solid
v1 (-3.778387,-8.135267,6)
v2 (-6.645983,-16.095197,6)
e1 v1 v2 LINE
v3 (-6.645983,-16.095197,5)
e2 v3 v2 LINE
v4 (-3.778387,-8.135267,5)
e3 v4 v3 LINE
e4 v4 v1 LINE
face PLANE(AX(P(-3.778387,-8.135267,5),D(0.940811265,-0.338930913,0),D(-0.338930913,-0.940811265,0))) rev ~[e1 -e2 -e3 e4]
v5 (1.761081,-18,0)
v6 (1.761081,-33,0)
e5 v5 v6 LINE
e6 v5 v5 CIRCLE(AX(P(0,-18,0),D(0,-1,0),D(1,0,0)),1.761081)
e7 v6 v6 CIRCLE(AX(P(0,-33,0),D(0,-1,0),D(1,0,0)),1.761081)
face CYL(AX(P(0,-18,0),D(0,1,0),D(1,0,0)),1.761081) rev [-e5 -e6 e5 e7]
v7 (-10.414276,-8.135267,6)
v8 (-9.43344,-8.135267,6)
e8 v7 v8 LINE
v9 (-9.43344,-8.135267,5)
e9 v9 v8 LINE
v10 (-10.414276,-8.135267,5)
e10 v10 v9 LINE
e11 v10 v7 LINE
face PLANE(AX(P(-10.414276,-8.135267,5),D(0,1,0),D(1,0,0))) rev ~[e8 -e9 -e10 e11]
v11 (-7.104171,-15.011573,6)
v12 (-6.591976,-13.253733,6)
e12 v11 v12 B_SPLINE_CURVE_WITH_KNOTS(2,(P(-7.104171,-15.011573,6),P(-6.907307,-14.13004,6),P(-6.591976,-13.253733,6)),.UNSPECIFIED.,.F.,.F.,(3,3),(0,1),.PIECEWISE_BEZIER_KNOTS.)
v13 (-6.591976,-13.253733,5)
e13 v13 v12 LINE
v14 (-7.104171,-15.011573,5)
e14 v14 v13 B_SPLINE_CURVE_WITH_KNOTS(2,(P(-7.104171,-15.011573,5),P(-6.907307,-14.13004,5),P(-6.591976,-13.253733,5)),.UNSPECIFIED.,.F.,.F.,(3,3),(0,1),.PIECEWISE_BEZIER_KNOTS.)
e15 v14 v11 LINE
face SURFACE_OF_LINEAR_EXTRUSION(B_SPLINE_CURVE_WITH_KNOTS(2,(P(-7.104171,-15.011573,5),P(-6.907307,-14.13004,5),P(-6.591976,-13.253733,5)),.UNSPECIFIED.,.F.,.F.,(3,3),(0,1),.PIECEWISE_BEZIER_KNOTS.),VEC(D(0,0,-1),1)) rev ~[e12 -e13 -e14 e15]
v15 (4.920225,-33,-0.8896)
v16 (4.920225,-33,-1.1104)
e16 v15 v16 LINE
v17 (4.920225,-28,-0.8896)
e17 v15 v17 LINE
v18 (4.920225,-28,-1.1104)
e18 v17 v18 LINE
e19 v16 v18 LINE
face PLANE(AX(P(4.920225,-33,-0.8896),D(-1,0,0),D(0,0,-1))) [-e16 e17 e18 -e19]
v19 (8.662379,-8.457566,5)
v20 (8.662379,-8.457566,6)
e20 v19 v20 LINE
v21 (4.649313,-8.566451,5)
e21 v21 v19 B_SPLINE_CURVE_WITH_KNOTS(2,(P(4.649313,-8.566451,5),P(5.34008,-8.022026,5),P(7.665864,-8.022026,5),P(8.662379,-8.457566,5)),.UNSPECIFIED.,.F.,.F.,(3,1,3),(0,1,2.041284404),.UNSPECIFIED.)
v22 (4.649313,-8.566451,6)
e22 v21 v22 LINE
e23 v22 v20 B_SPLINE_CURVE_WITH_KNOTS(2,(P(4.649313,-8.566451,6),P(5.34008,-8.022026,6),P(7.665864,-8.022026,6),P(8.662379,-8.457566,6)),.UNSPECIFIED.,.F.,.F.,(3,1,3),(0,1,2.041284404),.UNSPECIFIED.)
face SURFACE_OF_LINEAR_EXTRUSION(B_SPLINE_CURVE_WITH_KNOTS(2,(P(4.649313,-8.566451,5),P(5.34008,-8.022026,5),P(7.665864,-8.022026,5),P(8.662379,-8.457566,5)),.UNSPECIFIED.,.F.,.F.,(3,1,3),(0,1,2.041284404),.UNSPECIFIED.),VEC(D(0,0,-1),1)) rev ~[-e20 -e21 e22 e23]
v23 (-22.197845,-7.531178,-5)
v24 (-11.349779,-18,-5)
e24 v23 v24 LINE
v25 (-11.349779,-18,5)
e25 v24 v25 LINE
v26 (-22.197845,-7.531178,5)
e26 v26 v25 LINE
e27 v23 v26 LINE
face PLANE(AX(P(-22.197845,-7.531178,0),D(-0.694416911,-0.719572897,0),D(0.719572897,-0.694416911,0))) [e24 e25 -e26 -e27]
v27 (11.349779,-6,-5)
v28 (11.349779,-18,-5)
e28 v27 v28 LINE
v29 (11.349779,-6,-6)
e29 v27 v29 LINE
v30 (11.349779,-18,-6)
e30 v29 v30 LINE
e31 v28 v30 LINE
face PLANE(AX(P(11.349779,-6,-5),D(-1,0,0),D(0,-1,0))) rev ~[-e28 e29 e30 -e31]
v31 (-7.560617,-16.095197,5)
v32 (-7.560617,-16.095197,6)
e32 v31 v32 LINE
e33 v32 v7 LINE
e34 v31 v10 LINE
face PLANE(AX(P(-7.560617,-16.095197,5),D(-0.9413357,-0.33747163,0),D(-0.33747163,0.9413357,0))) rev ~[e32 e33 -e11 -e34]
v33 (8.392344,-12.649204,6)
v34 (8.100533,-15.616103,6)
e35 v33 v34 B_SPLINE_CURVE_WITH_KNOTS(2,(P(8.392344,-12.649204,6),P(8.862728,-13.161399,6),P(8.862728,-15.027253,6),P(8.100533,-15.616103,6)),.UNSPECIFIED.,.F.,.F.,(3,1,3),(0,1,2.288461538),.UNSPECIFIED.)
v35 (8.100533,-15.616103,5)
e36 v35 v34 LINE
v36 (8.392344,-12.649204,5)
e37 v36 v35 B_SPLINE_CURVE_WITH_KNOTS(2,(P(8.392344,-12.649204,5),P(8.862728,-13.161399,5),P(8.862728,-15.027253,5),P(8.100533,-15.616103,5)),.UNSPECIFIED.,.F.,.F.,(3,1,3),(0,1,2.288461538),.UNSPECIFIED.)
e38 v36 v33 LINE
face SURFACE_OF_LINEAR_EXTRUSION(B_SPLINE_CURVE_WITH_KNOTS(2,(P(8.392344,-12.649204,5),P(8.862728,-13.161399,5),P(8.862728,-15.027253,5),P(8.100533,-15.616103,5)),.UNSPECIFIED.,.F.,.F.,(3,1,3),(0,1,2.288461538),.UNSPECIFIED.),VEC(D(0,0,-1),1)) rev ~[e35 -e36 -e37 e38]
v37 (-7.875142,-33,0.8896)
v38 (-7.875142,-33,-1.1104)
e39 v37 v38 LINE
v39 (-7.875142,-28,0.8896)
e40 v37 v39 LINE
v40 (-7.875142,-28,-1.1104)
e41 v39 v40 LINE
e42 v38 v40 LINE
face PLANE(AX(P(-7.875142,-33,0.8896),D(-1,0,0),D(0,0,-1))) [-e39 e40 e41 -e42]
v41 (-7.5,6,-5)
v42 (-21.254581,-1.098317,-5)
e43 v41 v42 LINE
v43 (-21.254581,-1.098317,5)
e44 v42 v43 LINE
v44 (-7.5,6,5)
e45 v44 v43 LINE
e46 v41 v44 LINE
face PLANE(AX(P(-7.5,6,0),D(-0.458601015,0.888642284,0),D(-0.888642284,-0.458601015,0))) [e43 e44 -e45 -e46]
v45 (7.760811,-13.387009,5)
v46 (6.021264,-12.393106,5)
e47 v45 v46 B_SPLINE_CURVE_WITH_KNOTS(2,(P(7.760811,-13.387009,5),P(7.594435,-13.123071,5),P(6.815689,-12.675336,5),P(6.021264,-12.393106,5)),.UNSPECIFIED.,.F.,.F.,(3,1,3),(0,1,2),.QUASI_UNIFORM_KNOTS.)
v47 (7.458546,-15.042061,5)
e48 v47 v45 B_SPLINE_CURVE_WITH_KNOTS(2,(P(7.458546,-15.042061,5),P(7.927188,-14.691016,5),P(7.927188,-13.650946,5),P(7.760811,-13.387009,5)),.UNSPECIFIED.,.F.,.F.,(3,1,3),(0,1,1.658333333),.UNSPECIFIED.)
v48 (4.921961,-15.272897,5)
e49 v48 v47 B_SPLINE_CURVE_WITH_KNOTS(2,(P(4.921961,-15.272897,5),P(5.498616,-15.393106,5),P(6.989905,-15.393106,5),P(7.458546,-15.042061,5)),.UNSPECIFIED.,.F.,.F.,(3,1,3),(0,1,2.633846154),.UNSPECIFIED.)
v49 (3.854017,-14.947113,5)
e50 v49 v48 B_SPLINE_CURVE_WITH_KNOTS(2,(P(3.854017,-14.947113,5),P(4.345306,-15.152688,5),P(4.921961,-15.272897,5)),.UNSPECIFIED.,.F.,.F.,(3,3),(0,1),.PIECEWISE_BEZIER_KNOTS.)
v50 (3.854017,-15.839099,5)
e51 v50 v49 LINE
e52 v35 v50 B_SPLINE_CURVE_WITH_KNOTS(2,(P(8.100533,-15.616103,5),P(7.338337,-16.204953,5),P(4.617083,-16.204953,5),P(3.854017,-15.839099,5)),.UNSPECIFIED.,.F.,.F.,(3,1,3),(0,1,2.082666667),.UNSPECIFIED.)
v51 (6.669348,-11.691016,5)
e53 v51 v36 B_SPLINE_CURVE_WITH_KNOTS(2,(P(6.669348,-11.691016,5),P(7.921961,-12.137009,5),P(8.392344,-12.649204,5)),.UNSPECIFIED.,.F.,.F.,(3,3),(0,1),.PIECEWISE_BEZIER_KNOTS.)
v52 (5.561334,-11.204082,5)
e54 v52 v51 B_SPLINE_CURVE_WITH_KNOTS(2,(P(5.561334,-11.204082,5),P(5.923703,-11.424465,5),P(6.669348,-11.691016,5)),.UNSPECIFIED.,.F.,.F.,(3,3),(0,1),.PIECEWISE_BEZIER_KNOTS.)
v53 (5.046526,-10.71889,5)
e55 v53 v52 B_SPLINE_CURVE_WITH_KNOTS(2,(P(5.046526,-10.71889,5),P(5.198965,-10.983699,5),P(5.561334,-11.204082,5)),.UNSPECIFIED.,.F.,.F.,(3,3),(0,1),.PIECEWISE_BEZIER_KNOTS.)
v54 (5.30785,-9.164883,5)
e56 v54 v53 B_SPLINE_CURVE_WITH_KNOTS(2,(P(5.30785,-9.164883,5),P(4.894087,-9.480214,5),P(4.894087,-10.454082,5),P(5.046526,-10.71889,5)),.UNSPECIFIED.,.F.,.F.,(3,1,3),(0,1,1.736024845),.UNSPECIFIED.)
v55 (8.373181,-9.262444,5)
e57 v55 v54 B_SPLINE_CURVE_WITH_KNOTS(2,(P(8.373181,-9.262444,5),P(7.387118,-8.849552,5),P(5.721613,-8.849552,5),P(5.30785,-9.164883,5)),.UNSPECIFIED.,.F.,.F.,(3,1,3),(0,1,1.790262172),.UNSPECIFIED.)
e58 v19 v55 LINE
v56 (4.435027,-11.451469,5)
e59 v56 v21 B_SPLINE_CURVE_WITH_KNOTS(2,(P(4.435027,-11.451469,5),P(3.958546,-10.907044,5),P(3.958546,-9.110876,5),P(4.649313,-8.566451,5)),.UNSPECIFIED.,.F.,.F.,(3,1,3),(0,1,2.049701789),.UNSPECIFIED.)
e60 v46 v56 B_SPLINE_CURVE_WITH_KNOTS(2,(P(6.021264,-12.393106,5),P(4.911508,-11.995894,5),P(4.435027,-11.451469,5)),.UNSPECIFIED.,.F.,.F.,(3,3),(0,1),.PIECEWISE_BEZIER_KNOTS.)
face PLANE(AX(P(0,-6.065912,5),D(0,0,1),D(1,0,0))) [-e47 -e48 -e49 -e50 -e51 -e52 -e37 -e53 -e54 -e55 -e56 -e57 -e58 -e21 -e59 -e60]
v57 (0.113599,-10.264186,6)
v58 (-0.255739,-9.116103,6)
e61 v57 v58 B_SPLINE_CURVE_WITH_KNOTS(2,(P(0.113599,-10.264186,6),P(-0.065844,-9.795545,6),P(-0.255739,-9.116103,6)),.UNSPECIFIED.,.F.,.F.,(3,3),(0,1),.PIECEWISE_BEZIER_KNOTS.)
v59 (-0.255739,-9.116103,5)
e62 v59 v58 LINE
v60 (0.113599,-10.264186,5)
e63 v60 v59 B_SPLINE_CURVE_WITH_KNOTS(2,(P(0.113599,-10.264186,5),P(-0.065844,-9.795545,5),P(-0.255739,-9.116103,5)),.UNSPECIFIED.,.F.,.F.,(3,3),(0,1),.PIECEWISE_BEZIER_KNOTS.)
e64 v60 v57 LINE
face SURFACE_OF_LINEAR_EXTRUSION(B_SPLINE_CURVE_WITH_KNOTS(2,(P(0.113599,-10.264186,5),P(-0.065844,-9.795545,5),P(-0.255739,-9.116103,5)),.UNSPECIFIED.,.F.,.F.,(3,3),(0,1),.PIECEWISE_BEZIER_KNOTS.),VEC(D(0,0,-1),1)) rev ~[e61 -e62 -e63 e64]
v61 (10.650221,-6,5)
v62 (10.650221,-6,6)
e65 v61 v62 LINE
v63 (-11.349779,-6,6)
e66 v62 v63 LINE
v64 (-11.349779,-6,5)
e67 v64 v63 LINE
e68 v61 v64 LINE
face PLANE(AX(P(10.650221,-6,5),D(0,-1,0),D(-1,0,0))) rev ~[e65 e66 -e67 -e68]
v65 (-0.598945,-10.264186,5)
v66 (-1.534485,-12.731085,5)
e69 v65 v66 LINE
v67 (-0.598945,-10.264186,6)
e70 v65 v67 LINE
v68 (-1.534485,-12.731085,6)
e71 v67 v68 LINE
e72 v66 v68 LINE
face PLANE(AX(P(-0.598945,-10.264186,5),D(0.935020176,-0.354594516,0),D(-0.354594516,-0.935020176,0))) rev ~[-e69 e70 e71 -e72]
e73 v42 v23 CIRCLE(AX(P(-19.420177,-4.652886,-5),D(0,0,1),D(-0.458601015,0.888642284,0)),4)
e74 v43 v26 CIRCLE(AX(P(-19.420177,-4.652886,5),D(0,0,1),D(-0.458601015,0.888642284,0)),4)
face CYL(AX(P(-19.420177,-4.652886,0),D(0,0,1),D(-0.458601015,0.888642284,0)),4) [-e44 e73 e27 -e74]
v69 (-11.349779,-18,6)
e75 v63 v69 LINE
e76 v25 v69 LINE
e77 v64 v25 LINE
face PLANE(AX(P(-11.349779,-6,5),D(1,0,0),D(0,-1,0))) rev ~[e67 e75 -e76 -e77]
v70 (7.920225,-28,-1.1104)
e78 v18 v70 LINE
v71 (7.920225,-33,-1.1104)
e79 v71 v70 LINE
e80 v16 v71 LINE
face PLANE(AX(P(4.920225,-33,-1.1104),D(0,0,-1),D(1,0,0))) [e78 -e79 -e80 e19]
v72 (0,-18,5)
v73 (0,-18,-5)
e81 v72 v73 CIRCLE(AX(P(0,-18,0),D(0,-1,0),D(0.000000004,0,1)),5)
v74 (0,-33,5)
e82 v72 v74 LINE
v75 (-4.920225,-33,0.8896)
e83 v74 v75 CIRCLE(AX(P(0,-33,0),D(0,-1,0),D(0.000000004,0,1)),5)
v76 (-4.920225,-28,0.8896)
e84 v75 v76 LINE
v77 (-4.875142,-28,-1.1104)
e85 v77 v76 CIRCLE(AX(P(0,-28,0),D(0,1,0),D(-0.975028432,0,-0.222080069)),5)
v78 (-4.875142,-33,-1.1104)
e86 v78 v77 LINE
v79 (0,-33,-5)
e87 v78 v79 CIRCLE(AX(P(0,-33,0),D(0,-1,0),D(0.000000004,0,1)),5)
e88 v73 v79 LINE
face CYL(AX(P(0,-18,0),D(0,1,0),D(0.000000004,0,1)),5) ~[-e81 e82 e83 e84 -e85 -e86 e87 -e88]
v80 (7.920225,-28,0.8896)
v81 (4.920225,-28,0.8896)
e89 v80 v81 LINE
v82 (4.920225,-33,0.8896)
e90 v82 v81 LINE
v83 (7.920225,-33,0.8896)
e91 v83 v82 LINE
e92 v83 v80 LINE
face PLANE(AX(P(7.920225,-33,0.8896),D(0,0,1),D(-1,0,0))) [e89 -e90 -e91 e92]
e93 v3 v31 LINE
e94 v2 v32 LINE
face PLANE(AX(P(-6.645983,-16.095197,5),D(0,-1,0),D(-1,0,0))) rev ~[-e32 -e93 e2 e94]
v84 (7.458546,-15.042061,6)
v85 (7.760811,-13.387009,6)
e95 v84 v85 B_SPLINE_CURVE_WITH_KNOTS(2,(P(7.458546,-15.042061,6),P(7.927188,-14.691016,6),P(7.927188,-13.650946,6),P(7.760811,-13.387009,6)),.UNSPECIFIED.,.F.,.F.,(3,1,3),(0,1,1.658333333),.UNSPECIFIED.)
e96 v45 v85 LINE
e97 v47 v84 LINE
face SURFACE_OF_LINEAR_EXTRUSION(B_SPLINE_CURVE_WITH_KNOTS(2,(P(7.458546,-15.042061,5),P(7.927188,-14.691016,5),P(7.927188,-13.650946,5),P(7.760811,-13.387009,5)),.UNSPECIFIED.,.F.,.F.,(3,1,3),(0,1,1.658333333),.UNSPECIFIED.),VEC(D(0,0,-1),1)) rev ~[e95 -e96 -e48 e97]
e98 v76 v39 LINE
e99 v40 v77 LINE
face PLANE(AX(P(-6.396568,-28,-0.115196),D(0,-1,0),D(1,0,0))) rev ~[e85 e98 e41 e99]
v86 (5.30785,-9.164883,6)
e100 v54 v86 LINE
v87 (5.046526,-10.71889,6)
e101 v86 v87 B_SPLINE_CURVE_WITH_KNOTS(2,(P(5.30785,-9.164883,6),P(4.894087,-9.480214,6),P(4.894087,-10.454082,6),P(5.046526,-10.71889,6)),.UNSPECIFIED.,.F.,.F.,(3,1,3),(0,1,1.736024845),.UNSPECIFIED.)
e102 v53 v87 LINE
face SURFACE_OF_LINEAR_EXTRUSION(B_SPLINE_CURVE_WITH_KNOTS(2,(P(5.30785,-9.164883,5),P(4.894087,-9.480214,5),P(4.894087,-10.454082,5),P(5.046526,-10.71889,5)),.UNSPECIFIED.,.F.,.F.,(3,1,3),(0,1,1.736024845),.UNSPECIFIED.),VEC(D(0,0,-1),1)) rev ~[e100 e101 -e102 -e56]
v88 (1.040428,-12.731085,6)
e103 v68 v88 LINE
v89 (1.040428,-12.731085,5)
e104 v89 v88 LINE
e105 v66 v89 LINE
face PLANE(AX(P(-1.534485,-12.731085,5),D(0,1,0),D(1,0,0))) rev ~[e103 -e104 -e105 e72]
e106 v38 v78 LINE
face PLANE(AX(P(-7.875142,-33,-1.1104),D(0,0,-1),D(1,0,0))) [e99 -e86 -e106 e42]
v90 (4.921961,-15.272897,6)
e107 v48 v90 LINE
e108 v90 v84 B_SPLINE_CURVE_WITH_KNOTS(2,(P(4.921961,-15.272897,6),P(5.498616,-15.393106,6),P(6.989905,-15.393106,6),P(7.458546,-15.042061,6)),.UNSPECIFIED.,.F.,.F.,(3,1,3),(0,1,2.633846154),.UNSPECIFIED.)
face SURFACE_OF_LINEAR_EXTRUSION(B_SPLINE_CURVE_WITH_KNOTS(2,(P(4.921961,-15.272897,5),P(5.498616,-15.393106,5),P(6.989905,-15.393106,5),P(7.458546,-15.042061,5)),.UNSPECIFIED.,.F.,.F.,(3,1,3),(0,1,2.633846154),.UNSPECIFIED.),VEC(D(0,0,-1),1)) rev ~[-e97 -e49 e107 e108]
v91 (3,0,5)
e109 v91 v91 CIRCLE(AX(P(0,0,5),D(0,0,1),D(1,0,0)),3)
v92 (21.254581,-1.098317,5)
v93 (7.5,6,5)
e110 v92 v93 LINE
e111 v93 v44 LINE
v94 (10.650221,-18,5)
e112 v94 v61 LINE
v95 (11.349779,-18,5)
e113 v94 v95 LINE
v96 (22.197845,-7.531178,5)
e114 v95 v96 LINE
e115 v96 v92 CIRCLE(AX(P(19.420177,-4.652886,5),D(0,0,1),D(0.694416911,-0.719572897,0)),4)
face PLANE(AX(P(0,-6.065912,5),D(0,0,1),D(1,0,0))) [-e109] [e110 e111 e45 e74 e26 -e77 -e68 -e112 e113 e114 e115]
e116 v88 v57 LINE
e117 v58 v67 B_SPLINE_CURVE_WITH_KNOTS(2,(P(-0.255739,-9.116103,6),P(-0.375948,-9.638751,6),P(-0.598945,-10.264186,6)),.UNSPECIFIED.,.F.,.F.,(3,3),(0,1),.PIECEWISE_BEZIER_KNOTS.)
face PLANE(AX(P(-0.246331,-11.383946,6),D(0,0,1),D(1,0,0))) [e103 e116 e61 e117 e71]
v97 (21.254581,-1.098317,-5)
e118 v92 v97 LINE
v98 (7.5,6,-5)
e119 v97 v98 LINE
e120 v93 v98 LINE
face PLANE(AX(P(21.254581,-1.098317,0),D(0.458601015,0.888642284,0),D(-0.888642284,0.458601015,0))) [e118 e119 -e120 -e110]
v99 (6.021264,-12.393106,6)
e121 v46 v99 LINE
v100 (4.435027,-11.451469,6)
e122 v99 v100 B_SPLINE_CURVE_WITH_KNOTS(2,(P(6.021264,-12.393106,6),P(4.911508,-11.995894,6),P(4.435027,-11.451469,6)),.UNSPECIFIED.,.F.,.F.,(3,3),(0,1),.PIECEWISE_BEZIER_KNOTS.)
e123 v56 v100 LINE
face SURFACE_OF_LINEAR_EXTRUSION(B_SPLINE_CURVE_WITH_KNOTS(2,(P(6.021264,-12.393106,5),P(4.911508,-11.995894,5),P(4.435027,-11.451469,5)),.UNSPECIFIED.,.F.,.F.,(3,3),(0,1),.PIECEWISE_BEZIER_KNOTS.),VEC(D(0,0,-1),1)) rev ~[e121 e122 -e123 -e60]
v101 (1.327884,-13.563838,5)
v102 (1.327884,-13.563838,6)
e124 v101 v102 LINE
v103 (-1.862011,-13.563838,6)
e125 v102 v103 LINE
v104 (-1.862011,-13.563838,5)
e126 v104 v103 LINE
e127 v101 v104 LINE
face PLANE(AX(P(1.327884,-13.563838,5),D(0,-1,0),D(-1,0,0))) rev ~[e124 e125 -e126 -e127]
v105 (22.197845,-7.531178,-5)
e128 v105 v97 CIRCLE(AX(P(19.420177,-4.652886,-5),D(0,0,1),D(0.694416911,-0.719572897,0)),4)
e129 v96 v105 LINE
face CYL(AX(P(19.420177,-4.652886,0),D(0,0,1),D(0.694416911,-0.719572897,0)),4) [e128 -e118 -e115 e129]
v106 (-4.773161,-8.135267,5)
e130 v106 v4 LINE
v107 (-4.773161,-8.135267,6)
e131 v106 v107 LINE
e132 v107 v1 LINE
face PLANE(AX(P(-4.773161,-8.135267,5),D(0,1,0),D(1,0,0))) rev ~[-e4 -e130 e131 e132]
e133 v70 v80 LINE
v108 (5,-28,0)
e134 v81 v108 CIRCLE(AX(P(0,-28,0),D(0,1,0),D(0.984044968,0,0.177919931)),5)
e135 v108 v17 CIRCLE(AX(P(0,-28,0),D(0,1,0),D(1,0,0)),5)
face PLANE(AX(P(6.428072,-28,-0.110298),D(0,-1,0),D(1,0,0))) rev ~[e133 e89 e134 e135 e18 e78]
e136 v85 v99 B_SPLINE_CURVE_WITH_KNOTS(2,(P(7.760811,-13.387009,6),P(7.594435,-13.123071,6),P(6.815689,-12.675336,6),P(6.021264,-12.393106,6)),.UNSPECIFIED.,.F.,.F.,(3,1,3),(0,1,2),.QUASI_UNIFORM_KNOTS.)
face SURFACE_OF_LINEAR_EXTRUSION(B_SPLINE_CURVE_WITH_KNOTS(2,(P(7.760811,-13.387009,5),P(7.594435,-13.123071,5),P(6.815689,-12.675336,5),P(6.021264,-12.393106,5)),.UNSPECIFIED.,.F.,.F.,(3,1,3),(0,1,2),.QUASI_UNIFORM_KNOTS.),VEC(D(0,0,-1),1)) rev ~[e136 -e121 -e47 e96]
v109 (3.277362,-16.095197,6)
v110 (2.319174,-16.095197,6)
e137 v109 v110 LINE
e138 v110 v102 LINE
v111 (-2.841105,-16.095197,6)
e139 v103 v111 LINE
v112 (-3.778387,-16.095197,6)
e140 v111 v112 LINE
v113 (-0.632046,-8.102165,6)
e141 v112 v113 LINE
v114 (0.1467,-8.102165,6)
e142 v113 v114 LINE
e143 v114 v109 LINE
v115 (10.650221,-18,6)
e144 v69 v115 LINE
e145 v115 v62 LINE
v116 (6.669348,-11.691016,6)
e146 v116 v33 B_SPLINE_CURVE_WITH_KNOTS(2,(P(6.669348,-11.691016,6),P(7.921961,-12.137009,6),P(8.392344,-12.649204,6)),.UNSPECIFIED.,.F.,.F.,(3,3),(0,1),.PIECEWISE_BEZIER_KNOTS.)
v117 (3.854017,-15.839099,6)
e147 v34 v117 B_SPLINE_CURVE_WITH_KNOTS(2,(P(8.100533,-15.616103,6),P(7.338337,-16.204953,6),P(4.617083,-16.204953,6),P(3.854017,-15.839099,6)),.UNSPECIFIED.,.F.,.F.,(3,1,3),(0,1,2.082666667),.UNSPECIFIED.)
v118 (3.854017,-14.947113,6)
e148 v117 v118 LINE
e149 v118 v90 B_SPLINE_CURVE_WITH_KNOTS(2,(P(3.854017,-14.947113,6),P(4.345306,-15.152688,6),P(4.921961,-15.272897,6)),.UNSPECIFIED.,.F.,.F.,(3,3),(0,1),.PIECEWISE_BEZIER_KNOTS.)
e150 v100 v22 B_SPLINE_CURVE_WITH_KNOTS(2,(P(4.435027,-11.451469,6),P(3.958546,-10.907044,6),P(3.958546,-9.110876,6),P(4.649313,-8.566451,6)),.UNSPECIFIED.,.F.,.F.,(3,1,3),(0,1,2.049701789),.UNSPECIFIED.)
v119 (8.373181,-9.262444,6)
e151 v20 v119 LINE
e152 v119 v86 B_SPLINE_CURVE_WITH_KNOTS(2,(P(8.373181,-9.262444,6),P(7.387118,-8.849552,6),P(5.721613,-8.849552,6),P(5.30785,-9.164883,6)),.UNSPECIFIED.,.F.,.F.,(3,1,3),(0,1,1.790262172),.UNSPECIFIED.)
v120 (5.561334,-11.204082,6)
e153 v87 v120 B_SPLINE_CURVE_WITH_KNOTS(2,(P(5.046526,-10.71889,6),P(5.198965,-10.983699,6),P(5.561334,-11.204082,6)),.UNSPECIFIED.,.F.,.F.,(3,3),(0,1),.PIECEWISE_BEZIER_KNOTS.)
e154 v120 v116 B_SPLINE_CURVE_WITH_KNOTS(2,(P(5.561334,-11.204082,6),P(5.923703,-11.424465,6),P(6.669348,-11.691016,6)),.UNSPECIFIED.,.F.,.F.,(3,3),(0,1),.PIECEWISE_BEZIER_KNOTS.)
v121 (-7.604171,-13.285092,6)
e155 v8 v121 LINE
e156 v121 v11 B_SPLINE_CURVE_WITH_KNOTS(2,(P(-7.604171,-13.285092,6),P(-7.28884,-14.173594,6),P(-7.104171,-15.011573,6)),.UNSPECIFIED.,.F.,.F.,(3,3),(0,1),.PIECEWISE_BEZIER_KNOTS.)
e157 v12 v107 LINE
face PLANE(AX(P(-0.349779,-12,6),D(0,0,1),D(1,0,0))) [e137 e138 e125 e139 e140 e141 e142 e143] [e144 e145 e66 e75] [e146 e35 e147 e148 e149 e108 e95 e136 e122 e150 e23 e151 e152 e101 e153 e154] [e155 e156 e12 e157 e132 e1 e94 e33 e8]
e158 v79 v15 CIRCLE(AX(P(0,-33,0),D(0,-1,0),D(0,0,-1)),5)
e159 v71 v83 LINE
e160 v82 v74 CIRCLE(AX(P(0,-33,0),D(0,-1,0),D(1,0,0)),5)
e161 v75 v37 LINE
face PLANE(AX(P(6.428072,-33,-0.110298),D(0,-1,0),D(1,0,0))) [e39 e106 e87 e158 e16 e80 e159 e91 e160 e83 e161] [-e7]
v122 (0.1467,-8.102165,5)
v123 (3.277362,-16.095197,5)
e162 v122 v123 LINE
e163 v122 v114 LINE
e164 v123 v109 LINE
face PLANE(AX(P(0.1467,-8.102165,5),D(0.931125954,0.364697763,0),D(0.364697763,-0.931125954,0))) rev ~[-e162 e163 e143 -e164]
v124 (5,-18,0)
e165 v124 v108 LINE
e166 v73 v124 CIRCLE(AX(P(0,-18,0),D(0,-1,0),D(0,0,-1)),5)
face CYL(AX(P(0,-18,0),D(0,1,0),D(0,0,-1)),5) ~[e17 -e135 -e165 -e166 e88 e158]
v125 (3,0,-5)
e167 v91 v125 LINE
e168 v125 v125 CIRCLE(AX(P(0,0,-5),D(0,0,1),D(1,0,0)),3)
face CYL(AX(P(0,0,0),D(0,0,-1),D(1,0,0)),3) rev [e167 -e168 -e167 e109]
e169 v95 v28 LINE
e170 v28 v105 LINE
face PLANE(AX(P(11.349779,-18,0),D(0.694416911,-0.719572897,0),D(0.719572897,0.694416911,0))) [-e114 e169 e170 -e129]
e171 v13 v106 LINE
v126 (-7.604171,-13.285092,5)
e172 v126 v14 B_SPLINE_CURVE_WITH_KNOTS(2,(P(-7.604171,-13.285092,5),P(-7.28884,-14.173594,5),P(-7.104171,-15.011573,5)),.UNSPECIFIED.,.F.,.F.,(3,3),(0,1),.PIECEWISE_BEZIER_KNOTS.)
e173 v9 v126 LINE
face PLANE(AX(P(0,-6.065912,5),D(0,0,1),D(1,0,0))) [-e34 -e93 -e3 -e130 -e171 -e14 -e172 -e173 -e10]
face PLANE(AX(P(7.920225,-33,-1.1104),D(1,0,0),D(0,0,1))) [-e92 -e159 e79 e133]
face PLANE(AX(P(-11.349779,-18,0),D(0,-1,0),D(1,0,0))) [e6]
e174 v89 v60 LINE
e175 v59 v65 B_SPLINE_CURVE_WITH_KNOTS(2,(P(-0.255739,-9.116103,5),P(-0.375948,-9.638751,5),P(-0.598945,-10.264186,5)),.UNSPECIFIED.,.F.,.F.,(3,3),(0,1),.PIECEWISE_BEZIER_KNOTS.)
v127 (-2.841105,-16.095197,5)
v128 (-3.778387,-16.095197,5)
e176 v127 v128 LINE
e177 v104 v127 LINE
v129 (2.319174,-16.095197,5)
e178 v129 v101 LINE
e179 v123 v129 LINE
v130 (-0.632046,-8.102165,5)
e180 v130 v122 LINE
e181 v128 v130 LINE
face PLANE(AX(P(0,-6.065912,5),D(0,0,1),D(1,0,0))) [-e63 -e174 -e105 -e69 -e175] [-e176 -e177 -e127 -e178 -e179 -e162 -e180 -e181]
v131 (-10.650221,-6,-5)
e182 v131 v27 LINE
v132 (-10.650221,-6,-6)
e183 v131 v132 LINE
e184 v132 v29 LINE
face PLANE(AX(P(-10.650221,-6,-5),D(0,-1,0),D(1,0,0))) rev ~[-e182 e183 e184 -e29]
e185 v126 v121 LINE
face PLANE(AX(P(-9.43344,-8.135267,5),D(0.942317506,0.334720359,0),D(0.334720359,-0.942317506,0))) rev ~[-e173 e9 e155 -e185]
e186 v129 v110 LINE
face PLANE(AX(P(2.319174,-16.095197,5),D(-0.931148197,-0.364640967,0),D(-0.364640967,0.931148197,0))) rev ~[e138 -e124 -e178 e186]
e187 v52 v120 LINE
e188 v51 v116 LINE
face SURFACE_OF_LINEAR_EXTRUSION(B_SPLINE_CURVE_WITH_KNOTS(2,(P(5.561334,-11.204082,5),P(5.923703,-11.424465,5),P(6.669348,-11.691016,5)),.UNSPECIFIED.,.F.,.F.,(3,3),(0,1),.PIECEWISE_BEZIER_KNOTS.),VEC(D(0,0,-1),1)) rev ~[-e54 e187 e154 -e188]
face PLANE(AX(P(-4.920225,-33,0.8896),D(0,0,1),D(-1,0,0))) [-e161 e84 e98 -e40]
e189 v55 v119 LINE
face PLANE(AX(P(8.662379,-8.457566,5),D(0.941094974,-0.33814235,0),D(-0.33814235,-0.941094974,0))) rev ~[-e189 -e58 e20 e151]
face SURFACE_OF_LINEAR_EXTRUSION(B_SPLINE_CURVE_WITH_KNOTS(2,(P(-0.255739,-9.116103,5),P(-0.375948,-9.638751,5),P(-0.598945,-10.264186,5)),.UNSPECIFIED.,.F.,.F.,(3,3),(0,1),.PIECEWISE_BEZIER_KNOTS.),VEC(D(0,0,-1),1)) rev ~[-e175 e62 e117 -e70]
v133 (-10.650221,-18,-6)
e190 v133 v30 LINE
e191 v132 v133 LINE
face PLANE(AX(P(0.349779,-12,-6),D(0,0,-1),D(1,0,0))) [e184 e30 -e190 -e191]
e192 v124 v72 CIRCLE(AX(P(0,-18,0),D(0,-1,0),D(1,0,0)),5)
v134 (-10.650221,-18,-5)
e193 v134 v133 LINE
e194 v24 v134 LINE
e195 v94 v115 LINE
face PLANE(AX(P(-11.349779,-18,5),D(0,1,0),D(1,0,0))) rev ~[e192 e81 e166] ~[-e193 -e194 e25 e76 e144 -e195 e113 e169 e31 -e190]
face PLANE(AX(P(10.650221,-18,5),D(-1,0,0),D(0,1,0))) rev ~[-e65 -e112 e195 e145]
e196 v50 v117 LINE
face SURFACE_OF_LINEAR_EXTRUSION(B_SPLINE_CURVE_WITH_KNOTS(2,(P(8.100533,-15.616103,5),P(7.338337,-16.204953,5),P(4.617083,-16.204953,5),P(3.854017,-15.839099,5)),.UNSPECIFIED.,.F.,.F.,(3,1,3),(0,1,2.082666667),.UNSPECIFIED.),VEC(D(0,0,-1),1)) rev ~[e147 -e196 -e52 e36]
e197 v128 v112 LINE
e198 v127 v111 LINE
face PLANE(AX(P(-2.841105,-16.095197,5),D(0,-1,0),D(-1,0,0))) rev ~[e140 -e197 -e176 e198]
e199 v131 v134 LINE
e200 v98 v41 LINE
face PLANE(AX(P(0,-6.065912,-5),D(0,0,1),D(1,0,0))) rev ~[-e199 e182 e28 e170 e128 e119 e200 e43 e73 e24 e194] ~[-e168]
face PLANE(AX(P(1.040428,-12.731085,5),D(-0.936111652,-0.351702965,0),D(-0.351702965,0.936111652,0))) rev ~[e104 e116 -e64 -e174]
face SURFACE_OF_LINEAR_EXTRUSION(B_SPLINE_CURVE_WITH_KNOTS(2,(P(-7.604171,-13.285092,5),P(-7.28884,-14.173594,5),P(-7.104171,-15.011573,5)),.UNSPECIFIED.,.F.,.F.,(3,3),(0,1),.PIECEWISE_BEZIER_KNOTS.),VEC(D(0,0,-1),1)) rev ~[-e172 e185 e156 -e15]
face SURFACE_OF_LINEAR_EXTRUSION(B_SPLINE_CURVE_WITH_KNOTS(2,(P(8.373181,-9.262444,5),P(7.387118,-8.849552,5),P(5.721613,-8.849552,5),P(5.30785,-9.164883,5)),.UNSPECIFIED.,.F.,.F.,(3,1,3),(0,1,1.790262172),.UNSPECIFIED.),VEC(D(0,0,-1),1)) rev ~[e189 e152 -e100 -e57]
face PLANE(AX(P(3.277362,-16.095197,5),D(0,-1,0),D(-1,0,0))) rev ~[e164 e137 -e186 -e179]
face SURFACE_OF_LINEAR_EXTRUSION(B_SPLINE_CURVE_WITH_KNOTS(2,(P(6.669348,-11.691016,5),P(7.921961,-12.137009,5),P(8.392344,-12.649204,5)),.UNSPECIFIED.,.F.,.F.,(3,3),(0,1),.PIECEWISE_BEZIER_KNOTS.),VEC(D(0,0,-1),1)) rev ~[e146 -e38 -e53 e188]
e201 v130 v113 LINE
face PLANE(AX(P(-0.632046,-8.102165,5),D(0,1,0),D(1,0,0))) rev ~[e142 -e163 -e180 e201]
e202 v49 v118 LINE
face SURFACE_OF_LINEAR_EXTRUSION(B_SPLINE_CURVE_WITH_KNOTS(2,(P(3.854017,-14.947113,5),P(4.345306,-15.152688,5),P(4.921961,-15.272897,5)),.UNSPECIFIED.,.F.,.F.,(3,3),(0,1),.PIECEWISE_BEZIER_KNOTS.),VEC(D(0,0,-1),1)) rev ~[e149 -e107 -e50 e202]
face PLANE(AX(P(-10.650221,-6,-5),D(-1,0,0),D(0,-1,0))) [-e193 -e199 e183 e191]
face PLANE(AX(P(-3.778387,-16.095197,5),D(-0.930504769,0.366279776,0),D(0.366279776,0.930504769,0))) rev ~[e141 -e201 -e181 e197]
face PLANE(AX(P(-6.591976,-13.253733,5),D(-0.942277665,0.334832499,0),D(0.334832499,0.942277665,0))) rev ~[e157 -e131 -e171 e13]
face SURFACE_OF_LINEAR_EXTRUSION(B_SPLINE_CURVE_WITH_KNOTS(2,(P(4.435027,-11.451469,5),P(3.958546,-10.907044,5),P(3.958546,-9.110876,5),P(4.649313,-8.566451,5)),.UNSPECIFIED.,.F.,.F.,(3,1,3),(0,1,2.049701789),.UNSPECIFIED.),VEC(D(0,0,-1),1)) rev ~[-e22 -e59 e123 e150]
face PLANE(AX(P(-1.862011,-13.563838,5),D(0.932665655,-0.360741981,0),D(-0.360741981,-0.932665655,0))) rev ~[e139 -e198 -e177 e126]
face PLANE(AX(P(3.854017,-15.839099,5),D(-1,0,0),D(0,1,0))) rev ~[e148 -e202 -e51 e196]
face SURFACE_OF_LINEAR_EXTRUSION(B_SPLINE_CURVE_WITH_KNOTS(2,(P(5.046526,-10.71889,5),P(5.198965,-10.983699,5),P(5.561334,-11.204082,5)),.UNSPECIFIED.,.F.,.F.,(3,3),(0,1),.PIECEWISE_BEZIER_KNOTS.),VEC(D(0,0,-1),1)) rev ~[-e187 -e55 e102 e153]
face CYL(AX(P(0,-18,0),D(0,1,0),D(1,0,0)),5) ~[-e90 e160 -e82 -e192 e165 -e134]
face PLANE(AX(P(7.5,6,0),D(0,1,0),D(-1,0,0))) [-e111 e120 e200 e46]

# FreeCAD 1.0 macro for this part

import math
import FreeCAD as App
import Part
import Sketcher

doc = App.newDocument("Part")
body = doc.addObject("PartDesign::Body", "Body")

# Sketch on XY plane
sketch1 = doc.addObject("Sketcher::SketchObject", "Sketch")
body.addObject(sketch1)
sketch1.AttachmentSupport = (doc.XY_Plane, [""])
sketch1.MapMode = "FlatFace"
sketch1.addGeometry(Part.LineSegment(App.Vector(7.5, 6, 0), App.Vector(-7.5, 6, 0)), False)
sketch1.addGeometry(Part.LineSegment(App.Vector(-7.5, 6, 0), App.Vector(-21.3, -1.1, 0)), False)
sketch1.addGeometry(Part.ArcOfCircle(Part.Circle(App.Vector(-19.4, -4.7, 0), App.Vector(0, 0, 1), 4), math.radians(117), math.radians(226)), False)
sketch1.addGeometry(Part.LineSegment(App.Vector(-22.2, -7.5, 0), App.Vector(-11.3, -18, 0)), False)
sketch1.addGeometry(Part.LineSegment(App.Vector(-11.3, -18, 0), App.Vector(11.3, -18, 0)), False)
sketch1.addGeometry(Part.LineSegment(App.Vector(11.3, -18, 0), App.Vector(22.2, -7.5, 0)), False)
sketch1.addGeometry(Part.ArcOfCircle(Part.Circle(App.Vector(19.4, -4.7, 0), App.Vector(0, 0, 1), 4), math.radians(-46), math.radians(63)), False)
sketch1.addGeometry(Part.LineSegment(App.Vector(21.3, -1.1, 0), App.Vector(7.5, 6, 0)), False)
sketch1.addGeometry(Part.Circle(App.Vector(0, 0, 0), App.Vector(0, 0, 1), 3), False)
sketch1.addConstraint(Sketcher.Constraint("Coincident", 0, 2, 1, 1))
sketch1.addConstraint(Sketcher.Constraint("Tangent", 1, 2, 2, 1))
sketch1.addConstraint(Sketcher.Constraint("Tangent", 2, 2, 3, 1))
sketch1.addConstraint(Sketcher.Constraint("Coincident", 3, 2, 4, 1))
sketch1.addConstraint(Sketcher.Constraint("Coincident", 4, 2, 5, 1))
sketch1.addConstraint(Sketcher.Constraint("Tangent", 5, 2, 6, 1))
sketch1.addConstraint(Sketcher.Constraint("Tangent", 6, 2, 7, 1))
sketch1.addConstraint(Sketcher.Constraint("Coincident", 7, 2, 0, 1))
sketch1.addConstraint(Sketcher.Constraint("Horizontal", 0))
sketch1.addConstraint(Sketcher.Constraint("Horizontal", 4))
sketch1.addConstraint(Sketcher.Constraint("Coincident", 8, 3, -1, 1))
sketch1.addConstraint(Sketcher.Constraint("Equal", 2, 6))
sketch1.addConstraint(Sketcher.Constraint("Symmetric", 2, 3, 6, 3, -2))
sketch1.addConstraint(Sketcher.Constraint("Horizontal", 2, 2, 5, 2))
sketch1.addConstraint(Sketcher.Constraint("Horizontal", 1, 2, 6, 2))
sketch1.addConstraint(Sketcher.Constraint("Diameter", 8, 6.0))
sketch1.addConstraint(Sketcher.Constraint("Radius", 2, 4.0))
sketch1.addConstraint(Sketcher.Constraint("DistanceX", 0, 2, 0, 1, 15.0))
sketch1.addConstraint(Sketcher.Constraint("DistanceY", -1, 1, 0, 2, 6.0))
sketch1.addConstraint(Sketcher.Constraint("DistanceY", 3, 2, -1, 1, 18.0))
sketch1.addConstraint(Sketcher.Constraint("Distance", 3, 15.075701))
sketch1.addConstraint(Sketcher.Constraint("DistanceX", 2, 3, 3, 2, 8.070398))
sketch1.addConstraint(Sketcher.Constraint("DistanceX", 4, 1, 4, 2, 22.699557))
pad1 = doc.addObject("PartDesign::Pad", "Pad")
body.addObject(pad1)
pad1.Profile = sketch1
pad1.Length = 10
pad1.Midplane = True

# Sketch on XZ plane
sketch2 = doc.addObject("Sketcher::SketchObject", "Sketch001")
body.addObject(sketch2)
sketch2.AttachmentSupport = (doc.XZ_Plane, [""])
sketch2.MapMode = "FlatFace"
sketch2.AttachmentOffset = App.Placement(App.Vector(0, 0, 18), App.Rotation())
sketch2.addGeometry(Part.ArcOfCircle(Part.Circle(App.Vector(0, 0, 0), App.Vector(0, 0, 1), 5), math.radians(-90), math.radians(0)), False)
sketch2.addGeometry(Part.ArcOfCircle(Part.Circle(App.Vector(0, 0, 0), App.Vector(0, 0, 1), 5), math.radians(0), math.radians(90)), False)
sketch2.addGeometry(Part.ArcOfCircle(Part.Circle(App.Vector(0, 0, 0), App.Vector(0, 0, 1), 5), math.radians(90), math.radians(270)), False)
sketch2.addGeometry(Part.Circle(App.Vector(0, 0, 0), App.Vector(0, 0, 1), 1.8), False)
sketch2.addConstraint(Sketcher.Constraint("Tangent", 0, 2, 1, 1))
sketch2.addConstraint(Sketcher.Constraint("Tangent", 1, 2, 2, 1))
sketch2.addConstraint(Sketcher.Constraint("Tangent", 2, 2, 0, 1))
sketch2.addConstraint(Sketcher.Constraint("Coincident", 0, 3, -1, 1))
sketch2.addConstraint(Sketcher.Constraint("Coincident", 3, 3, -1, 1))
sketch2.addConstraint(Sketcher.Constraint("PointOnObject", 0, 2, -1))
sketch2.addConstraint(Sketcher.Constraint("PointOnObject", 1, 2, -2))
sketch2.addConstraint(Sketcher.Constraint("PointOnObject", 2, 2, -2))
sketch2.addConstraint(Sketcher.Constraint("Radius", 0, 5.0))
sketch2.addConstraint(Sketcher.Constraint("Diameter", 3, 3.522162))
pad2 = doc.addObject("PartDesign::Pad", "Pad001")
body.addObject(pad2)
pad2.Profile = sketch2
pad2.Length = 15

# Sketch on XZ plane
sketch3 = doc.addObject("Sketcher::SketchObject", "Sketch002")
body.addObject(sketch3)
sketch3.AttachmentSupport = (doc.XZ_Plane, [""])
sketch3.MapMode = "FlatFace"
sketch3.AttachmentOffset = App.Placement(App.Vector(0, 0, 33), App.Rotation())
sketch3.addGeometry(Part.LineSegment(App.Vector(-7.88, -1.11, 0), App.Vector(-4.88, -1.11, 0)), False)
sketch3.addGeometry(Part.ArcOfCircle(Part.Circle(App.Vector(0, 0, 0), App.Vector(0, 0, 1), 5), math.radians(170), math.radians(193)), False)
sketch3.addGeometry(Part.LineSegment(App.Vector(-4.92, 0.89, 0), App.Vector(-7.88, 0.89, 0)), False)
sketch3.addGeometry(Part.LineSegment(App.Vector(-7.88, 0.89, 0), App.Vector(-7.88, -1.11, 0)), False)
sketch3.addGeometry(Part.ArcOfCircle(Part.Circle(App.Vector(0, 0, 0), App.Vector(0, 0, 1), 5), math.radians(-10.25), math.radians(0)), False)
sketch3.addGeometry(Part.LineSegment(App.Vector(4.92, -0.89, 0), App.Vector(4.92, -1.11, 0)), False)
sketch3.addGeometry(Part.LineSegment(App.Vector(4.92, -1.11, 0), App.Vector(7.92, -1.11, 0)), False)
sketch3.addGeometry(Part.LineSegment(App.Vector(7.92, -1.11, 0), App.Vector(7.92, 0.89, 0)), False)
sketch3.addGeometry(Part.LineSegment(App.Vector(7.92, 0.89, 0), App.Vector(4.92, 0.89, 0)), False)
sketch3.addGeometry(Part.ArcOfCircle(Part.Circle(App.Vector(0, 0, 0), App.Vector(0, 0, 1), 5), math.radians(0), math.radians(10.25)), False)
sketch3.addConstraint(Sketcher.Constraint("Coincident", 0, 2, 1, 2))
sketch3.addConstraint(Sketcher.Constraint("Coincident", 1, 1, 2, 1))
sketch3.addConstraint(Sketcher.Constraint("Coincident", 2, 2, 3, 1))
sketch3.addConstraint(Sketcher.Constraint("Coincident", 3, 2, 0, 1))
sketch3.addConstraint(Sketcher.Constraint("Coincident", 4, 1, 5, 1))
sketch3.addConstraint(Sketcher.Constraint("Coincident", 5, 2, 6, 1))
sketch3.addConstraint(Sketcher.Constraint("Coincident", 6, 2, 7, 1))
sketch3.addConstraint(Sketcher.Constraint("Coincident", 7, 2, 8, 1))
sketch3.addConstraint(Sketcher.Constraint("Coincident", 8, 2, 9, 2))
sketch3.addConstraint(Sketcher.Constraint("Tangent", 9, 1, 4, 2))
sketch3.addConstraint(Sketcher.Constraint("Horizontal", 0))
sketch3.addConstraint(Sketcher.Constraint("Horizontal", 2))
sketch3.addConstraint(Sketcher.Constraint("Vertical", 3))
sketch3.addConstraint(Sketcher.Constraint("Vertical", 5))
sketch3.addConstraint(Sketcher.Constraint("Horizontal", 6))
sketch3.addConstraint(Sketcher.Constraint("Vertical", 7))
sketch3.addConstraint(Sketcher.Constraint("Horizontal", 8))
sketch3.addConstraint(Sketcher.Constraint("Coincident", 1, 3, -1, 1))
sketch3.addConstraint(Sketcher.Constraint("Coincident", 4, 3, -1, 1))
sketch3.addConstraint(Sketcher.Constraint("Equal", 1, 4))
sketch3.addConstraint(Sketcher.Constraint("Equal", 4, 9))
sketch3.addConstraint(Sketcher.Constraint("PointOnObject", 9, 1, -1))
sketch3.addConstraint(Sketcher.Constraint("Horizontal", 3, 2, 5, 2))
sketch3.addConstraint(Sketcher.Constraint("Horizontal", 2, 2, 7, 2))
sketch3.addConstraint(Sketcher.Constraint("Vertical", 5, 2, 8, 2))
sketch3.addConstraint(Sketcher.Constraint("Equal", 0, 6))
sketch3.addConstraint(Sketcher.Constraint("Radius", 1, 5.0))
sketch3.addConstraint(Sketcher.Constraint("DistanceX", 0, 1, 0, 2, 3.0))
sketch3.addConstraint(Sketcher.Constraint("DistanceY", 3, 2, 3, 1, 2.0))
sketch3.addConstraint(Sketcher.Constraint("DistanceY", 5, 2, 5, 1, 0.220801))
pad3 = doc.addObject("PartDesign::Pad", "Pad002")
body.addObject(pad3)
pad3.Profile = sketch3
pad3.Length = 5
pad3.Reversed = True

# Sketch on XY plane
sketch4 = doc.addObject("Sketcher::SketchObject", "Sketch003")
body.addObject(sketch4)
sketch4.AttachmentSupport = (doc.XY_Plane, [""])
sketch4.MapMode = "FlatFace"
sketch4.AttachmentOffset = App.Placement(App.Vector(0, 0, -5), App.Rotation())
sketch4.addGeometry(Part.LineSegment(App.Vector(-11, -18, 0), App.Vector(-11, -6, 0)), False)
sketch4.addGeometry(Part.LineSegment(App.Vector(-11, -6, 0), App.Vector(11, -6, 0)), False)
sketch4.addGeometry(Part.LineSegment(App.Vector(11, -6, 0), App.Vector(11, -18, 0)), False)
sketch4.addGeometry(Part.LineSegment(App.Vector(11, -18, 0), App.Vector(-11, -18, 0)), False)
sketch4.addConstraint(Sketcher.Constraint("Coincident", 0, 2, 1, 1))
sketch4.addConstraint(Sketcher.Constraint("Coincident", 1, 2, 2, 1))
sketch4.addConstraint(Sketcher.Constraint("Coincident", 2, 2, 3, 1))
sketch4.addConstraint(Sketcher.Constraint("Coincident", 3, 2, 0, 1))
sketch4.addConstraint(Sketcher.Constraint("Vertical", 0))
sketch4.addConstraint(Sketcher.Constraint("Horizontal", 1))
sketch4.addConstraint(Sketcher.Constraint("Vertical", 2))
sketch4.addConstraint(Sketcher.Constraint("Horizontal", 3))
sketch4.addConstraint(Sketcher.Constraint("DistanceX", 1, 1, 1, 2, 22.0))
sketch4.addConstraint(Sketcher.Constraint("DistanceY", 0, 1, 0, 2, 12.0))
sketch4.addConstraint(Sketcher.Constraint("DistanceY", 0, 2, -1, 1, 6.0))
sketch4.addConstraint(Sketcher.Constraint("DistanceX", 0, 2, -1, 1, 10.650221))
pad4 = doc.addObject("PartDesign::Pad", "Pad003")
body.addObject(pad4)
pad4.Profile = sketch4
pad4.Length = 1
pad4.Reversed = True

# Sketch on XY plane
sketch5 = doc.addObject("Sketcher::SketchObject", "Sketch004")
body.addObject(sketch5)
sketch5.AttachmentSupport = (doc.XY_Plane, [""])
sketch5.MapMode = "FlatFace"
sketch5.AttachmentOffset = App.Placement(App.Vector(0, 0, 5), App.Rotation())
sketch5.addGeometry(Part.LineSegment(App.Vector(-11.349779, -6, 0), App.Vector(-11.349779, -18, 0)), False)
sketch5.addGeometry(Part.LineSegment(App.Vector(-11.349779, -18, 0), App.Vector(10.650221, -18, 0)), False)
sketch5.addGeometry(Part.LineSegment(App.Vector(10.650221, -18, 0), App.Vector(10.650221, -6, 0)), False)
sketch5.addGeometry(Part.LineSegment(App.Vector(10.650221, -6, 0), App.Vector(-11.349779, -6, 0)), False)
sketch5.addGeometry(Part.BSplineCurve([App.Vector(-7.104171, -15.011573, 0), App.Vector(-6.907307, -14.13004, 0), App.Vector(-6.591976, -13.253733, 0)], [3, 3], [0, 1], False, 2, [1, 1, 1], False), False)
sketch5.addGeometry(Part.LineSegment(App.Vector(-6.591976, -13.253733, 0), App.Vector(-4.773161, -8.135267, 0)), False)
sketch5.addGeometry(Part.LineSegment(App.Vector(-4.773161, -8.135267, 0), App.Vector(-3.778387, -8.135267, 0)), False)
sketch5.addGeometry(Part.LineSegment(App.Vector(-3.778387, -8.135267, 0), App.Vector(-6.645983, -16.095197, 0)), False)
sketch5.addGeometry(Part.LineSegment(App.Vector(-6.645983, -16.095197, 0), App.Vector(-7.560617, -16.095197, 0)), False)
sketch5.addGeometry(Part.LineSegment(App.Vector(-7.560617, -16.095197, 0), App.Vector(-10.414276, -8.135267, 0)), False)
sketch5.addGeometry(Part.LineSegment(App.Vector(-10.414276, -8.135267, 0), App.Vector(-9.43344, -8.135267, 0)), False)
sketch5.addGeometry(Part.LineSegment(App.Vector(-9.43344, -8.135267, 0), App.Vector(-7.604171, -13.285092, 0)), False)
sketch5.addGeometry(Part.BSplineCurve([App.Vector(-7.604171, -13.285092, 0), App.Vector(-7.28884, -14.173594, 0), App.Vector(-7.104171, -15.011573, 0)], [3, 3], [0, 1], False, 2, [1, 1, 1], False), False)
sketch5.addGeometry(Part.LineSegment(App.Vector(0.1467, -8.102165, 0), App.Vector(3.277362, -16.095197, 0)), False)
sketch5.addGeometry(Part.LineSegment(App.Vector(3.277362, -16.095197, 0), App.Vector(2.319174, -16.095197, 0)), False)
sketch5.addGeometry(Part.LineSegment(App.Vector(2.319174, -16.095197, 0), App.Vector(1.327884, -13.563838, 0)), False)
sketch5.addGeometry(Part.LineSegment(App.Vector(1.327884, -13.563838, 0), App.Vector(-1.862011, -13.563838, 0)), False)
sketch5.addGeometry(Part.LineSegment(App.Vector(-1.862011, -13.563838, 0), App.Vector(-2.841105, -16.095197, 0)), False)
sketch5.addGeometry(Part.LineSegment(App.Vector(-2.841105, -16.095197, 0), App.Vector(-3.778387, -16.095197, 0)), False)
sketch5.addGeometry(Part.LineSegment(App.Vector(-3.778387, -16.095197, 0), App.Vector(-0.632046, -8.102165, 0)), False)
sketch5.addGeometry(Part.LineSegment(App.Vector(-0.632046, -8.102165, 0), App.Vector(0.1467, -8.102165, 0)), False)
sketch5.addGeometry(Part.BSplineCurve([App.Vector(6.669348, -11.691016, 0), App.Vector(7.921961, -12.137009, 0), App.Vector(8.392344, -12.649204, 0)], [3, 3], [0, 1], False, 2, [1, 1, 1], False), False)
sketch5.addGeometry(Part.BSplineCurve([App.Vector(8.392344, -12.649204, 0), App.Vector(8.862728, -13.161399, 0), App.Vector(8.862728, -15.027253, 0), App.Vector(8.100533, -15.616103, 0)], [3, 1, 3], [0, 1, 2.288461538], False, 2, [1, 1, 1, 1], False), False)
sketch5.addGeometry(Part.BSplineCurve([App.Vector(8.100533, -15.616103, 0), App.Vector(7.338337, -16.204953, 0), App.Vector(4.617083, -16.204953, 0), App.Vector(3.854017, -15.839099, 0)], [3, 1, 3], [0, 1, 2.082666667], False, 2, [1, 1, 1, 1], False), False)
sketch5.addGeometry(Part.LineSegment(App.Vector(3.854017, -15.839099, 0), App.Vector(3.854017, -14.947113, 0)), False)
sketch5.addGeometry(Part.BSplineCurve([App.Vector(3.854017, -14.947113, 0), App.Vector(4.345306, -15.152688, 0), App.Vector(4.921961, -15.272897, 0)], [3, 3], [0, 1], False, 2, [1, 1, 1], False), False)
sketch5.addGeometry(Part.BSplineCurve([App.Vector(4.921961, -15.272897, 0), App.Vector(5.498616, -15.393106, 0), App.Vector(6.989905, -15.393106, 0), App.Vector(7.458546, -15.042061, 0)], [3, 1, 3], [0, 1, 2.633846154], False, 2, [1, 1, 1, 1], False), False)
sketch5.addGeometry(Part.BSplineCurve([App.Vector(7.458546, -15.042061, 0), App.Vector(7.927188, -14.691016, 0), App.Vector(7.927188, -13.650946, 0), App.Vector(7.760811, -13.387009, 0)], [3, 1, 3], [0, 1, 1.658333333], False, 2, [1, 1, 1, 1], False), False)
sketch5.addGeometry(Part.BSplineCurve([App.Vector(7.760811, -13.387009, 0), App.Vector(7.594435, -13.123071, 0), App.Vector(6.815689, -12.675336, 0), App.Vector(6.021264, -12.393106, 0)], [3, 1, 3], [0, 1, 2], False, 2, [1, 1, 1, 1], False), False)
sketch5.addGeometry(Part.BSplineCurve([App.Vector(6.021264, -12.393106, 0), App.Vector(4.911508, -11.995894, 0), App.Vector(4.435027, -11.451469, 0)], [3, 3], [0, 1], False, 2, [1, 1, 1], False), False)
sketch5.addGeometry(Part.BSplineCurve([App.Vector(4.435027, -11.451469, 0), App.Vector(3.958546, -10.907044, 0), App.Vector(3.958546, -9.110876, 0), App.Vector(4.649313, -8.566451, 0)], [3, 1, 3], [0, 1, 2.049701789], False, 2, [1, 1, 1, 1], False), False)
sketch5.addGeometry(Part.BSplineCurve([App.Vector(4.649313, -8.566451, 0), App.Vector(5.34008, -8.022026, 0), App.Vector(7.665864, -8.022026, 0), App.Vector(8.662379, -8.457566, 0)], [3, 1, 3], [0, 1, 2.041284404], False, 2, [1, 1, 1, 1], False), False)
sketch5.addGeometry(Part.LineSegment(App.Vector(8.662379, -8.457566, 0), App.Vector(8.373181, -9.262444, 0)), False)
sketch5.addGeometry(Part.BSplineCurve([App.Vector(8.373181, -9.262444, 0), App.Vector(7.387118, -8.849552, 0), App.Vector(5.721613, -8.849552, 0), App.Vector(5.30785, -9.164883, 0)], [3, 1, 3], [0, 1, 1.790262172], False, 2, [1, 1, 1, 1], False), False)
sketch5.addGeometry(Part.BSplineCurve([App.Vector(5.30785, -9.164883, 0), App.Vector(4.894087, -9.480214, 0), App.Vector(4.894087, -10.454082, 0), App.Vector(5.046526, -10.71889, 0)], [3, 1, 3], [0, 1, 1.736024845], False, 2, [1, 1, 1, 1], False), False)
sketch5.addGeometry(Part.BSplineCurve([App.Vector(5.046526, -10.71889, 0), App.Vector(5.198965, -10.983699, 0), App.Vector(5.561334, -11.204082, 0)], [3, 3], [0, 1], False, 2, [1, 1, 1], False), False)
sketch5.addGeometry(Part.BSplineCurve([App.Vector(5.561334, -11.204082, 0), App.Vector(5.923703, -11.424465, 0), App.Vector(6.669348, -11.691016, 0)], [3, 3], [0, 1], False, 2, [1, 1, 1], False), False)
sketch5.addConstraint(Sketcher.Constraint("Block", 4))
sketch5.addConstraint(Sketcher.Constraint("Block", 12))
sketch5.addConstraint(Sketcher.Constraint("Block", 21))
sketch5.addConstraint(Sketcher.Constraint("Block", 22))
sketch5.addConstraint(Sketcher.Constraint("Block", 23))
sketch5.addConstraint(Sketcher.Constraint("Block", 25))
sketch5.addConstraint(Sketcher.Constraint("Block", 26))
sketch5.addConstraint(Sketcher.Constraint("Block", 27))
sketch5.addConstraint(Sketcher.Constraint("Block", 28))
sketch5.addConstraint(Sketcher.Constraint("Block", 29))
sketch5.addConstraint(Sketcher.Constraint("Block", 30))
sketch5.addConstraint(Sketcher.Constraint("Block", 31))
sketch5.addConstraint(Sketcher.Constraint("Block", 33))
sketch5.addConstraint(Sketcher.Constraint("Block", 34))
sketch5.addConstraint(Sketcher.Constraint("Block", 35))
sketch5.addConstraint(Sketcher.Constraint("Block", 36))
sketch5.addConstraint(Sketcher.Constraint("Coincident", 0, 2, 1, 1))
sketch5.addConstraint(Sketcher.Constraint("Coincident", 1, 2, 2, 1))
sketch5.addConstraint(Sketcher.Constraint("Coincident", 2, 2, 3, 1))
sketch5.addConstraint(Sketcher.Constraint("Coincident", 3, 2, 0, 1))
sketch5.addConstraint(Sketcher.Constraint("Coincident", 4, 2, 5, 1))
sketch5.addConstraint(Sketcher.Constraint("Coincident", 5, 2, 6, 1))
sketch5.addConstraint(Sketcher.Constraint("Coincident", 6, 2, 7, 1))
sketch5.addConstraint(Sketcher.Constraint("Coincident", 7, 2, 8, 1))
sketch5.addConstraint(Sketcher.Constraint("Coincident", 8, 2, 9, 1))
sketch5.addConstraint(Sketcher.Constraint("Coincident", 9, 2, 10, 1))
sketch5.addConstraint(Sketcher.Constraint("Coincident", 10, 2, 11, 1))
sketch5.addConstraint(Sketcher.Constraint("Coincident", 11, 2, 12, 1))
sketch5.addConstraint(Sketcher.Constraint("Coincident", 13, 2, 14, 1))
sketch5.addConstraint(Sketcher.Constraint("Coincident", 14, 2, 15, 1))
sketch5.addConstraint(Sketcher.Constraint("Coincident", 15, 2, 16, 1))
sketch5.addConstraint(Sketcher.Constraint("Coincident", 16, 2, 17, 1))
sketch5.addConstraint(Sketcher.Constraint("Coincident", 17, 2, 18, 1))
sketch5.addConstraint(Sketcher.Constraint("Coincident", 18, 2, 19, 1))
sketch5.addConstraint(Sketcher.Constraint("Coincident", 19, 2, 20, 1))
sketch5.addConstraint(Sketcher.Constraint("Coincident", 20, 2, 13, 1))
sketch5.addConstraint(Sketcher.Constraint("Coincident", 23, 2, 24, 1))
sketch5.addConstraint(Sketcher.Constraint("Coincident", 24, 2, 25, 1))
sketch5.addConstraint(Sketcher.Constraint("Coincident", 31, 2, 32, 1))
sketch5.addConstraint(Sketcher.Constraint("Coincident", 32, 2, 33, 1))
sketch5.addConstraint(Sketcher.Constraint("Vertical", 0))
sketch5.addConstraint(Sketcher.Constraint("Horizontal", 1))
sketch5.addConstraint(Sketcher.Constraint("Vertical", 2))
sketch5.addConstraint(Sketcher.Constraint("Horizontal", 3))
sketch5.addConstraint(Sketcher.Constraint("Horizontal", 6))
sketch5.addConstraint(Sketcher.Constraint("Horizontal", 8))
sketch5.addConstraint(Sketcher.Constraint("Horizontal", 10))
sketch5.addConstraint(Sketcher.Constraint("Horizontal", 14))
sketch5.addConstraint(Sketcher.Constraint("Horizontal", 16))
sketch5.addConstraint(Sketcher.Constraint("Horizontal", 18))
sketch5.addConstraint(Sketcher.Constraint("Horizontal", 20))
sketch5.addConstraint(Sketcher.Constraint("Horizontal", 6, 2, 9, 2))
sketch5.addConstraint(Sketcher.Constraint("Horizontal", 8, 2, 13, 2))
sketch5.addConstraint(Sketcher.Constraint("Horizontal", 14, 2, 17, 2))
sketch5.addConstraint(Sketcher.Constraint("Vertical", 6, 2, 18, 2))
sketch5.addConstraint(Sketcher.Constraint("DistanceX", 1, 1, 1, 2, 22.0))
sketch5.addConstraint(Sketcher.Constraint("DistanceY", 0, 2, 0, 1, 12.0))
sketch5.addConstraint(Sketcher.Constraint("DistanceY", 0, 2, -1, 1, 18.0))
sketch5.addConstraint(Sketcher.Constraint("DistanceX", 14, 2, 14, 1, 0.958188))
sketch5.addConstraint(Sketcher.Constraint("DistanceX", -1, 1, 20, 2, 0.1467))
sketch5.addConstraint(Sketcher.Constraint("DistanceY", 6, 2, 19, 2, 0.033101))
sketch5.addConstraint(Sketcher.Constraint("Distance", 7, 8.460709))
sketch5.addConstraint(Sketcher.Constraint("Distance", 17, 2.714112))
sketch5.addConstraint(Sketcher.Constraint("DistanceX", 6, 1, 6, 2, 0.994774))
sketch5.addConstraint(Sketcher.Constraint("DistanceX", 8, 2, 8, 1, 0.914634))
sketch5.addConstraint(Sketcher.Constraint("DistanceX", 10, 1, 10, 2, 0.980836))
sketch5.addConstraint(Sketcher.Constraint("DistanceX", 16, 2, 16, 1, 3.189895))
sketch5.addConstraint(Sketcher.Constraint("DistanceX", 18, 2, 18, 1, 0.937282))
sketch5.addConstraint(Sketcher.Constraint("DistanceX", 20, 1, 20, 2, 0.778746))
sketch5.addConstraint(Sketcher.Constraint("DistanceX", 0, 2, -1, 1, 11.349779))
sketch5.addConstraint(Sketcher.Constraint("DistanceX", 5, 2, -1, 1, 4.773161))
sketch5.addConstraint(Sketcher.Constraint("DistanceX", 10, 2, -1, 1, 9.43344))
sketch5.addConstraint(Sketcher.Constraint("DistanceX", -1, 1, 13, 2, 3.277362))
sketch5.addConstraint(Sketcher.Constraint("DistanceX", 16, 2, -1, 1, 1.862011))
sketch5.addConstraint(Sketcher.Constraint("DistanceY", 7, 2, 5, 2, 7.95993))
sketch5.addConstraint(Sketcher.Constraint("DistanceY", 32, 2, 20, 2, 1.160279))
pad5 = doc.addObject("PartDesign::Pad", "Pad004")
body.addObject(pad5)
pad5.Profile = sketch5
pad5.Length = 1

# Sketch on XY plane
sketch6 = doc.addObject("Sketcher::SketchObject", "Sketch005")
body.addObject(sketch6)
sketch6.AttachmentSupport = (doc.XY_Plane, [""])
sketch6.MapMode = "FlatFace"
sketch6.AttachmentOffset = App.Placement(App.Vector(0, 0, 5), App.Rotation())
sketch6.addGeometry(Part.LineSegment(App.Vector(-1.534485, -12.731085, 0), App.Vector(1.040428, -12.731085, 0)), False)
sketch6.addGeometry(Part.LineSegment(App.Vector(1.040428, -12.731085, 0), App.Vector(0.113599, -10.264186, 0)), False)
sketch6.addGeometry(Part.BSplineCurve([App.Vector(0.113599, -10.264186, 0), App.Vector(-0.065844, -9.795545, 0), App.Vector(-0.255739, -9.116103, 0)], [3, 3], [0, 1], False, 2, [1, 1, 1], False), False)
sketch6.addGeometry(Part.BSplineCurve([App.Vector(-0.255739, -9.116103, 0), App.Vector(-0.375948, -9.638751, 0), App.Vector(-0.598945, -10.264186, 0)], [3, 3], [0, 1], False, 2, [1, 1, 1], False), False)
sketch6.addGeometry(Part.LineSegment(App.Vector(-0.598945, -10.264186, 0), App.Vector(-1.534485, -12.731085, 0)), False)
sketch6.addConstraint(Sketcher.Constraint("Block", 2))
sketch6.addConstraint(Sketcher.Constraint("Block", 3))
sketch6.addConstraint(Sketcher.Constraint("Coincident", 0, 2, 1, 1))
sketch6.addConstraint(Sketcher.Constraint("Coincident", 1, 2, 2, 1))
sketch6.addConstraint(Sketcher.Constraint("Coincident", 3, 2, 4, 1))
sketch6.addConstraint(Sketcher.Constraint("Coincident", 4, 2, 0, 1))
sketch6.addConstraint(Sketcher.Constraint("Horizontal", 0))
sketch6.addConstraint(Sketcher.Constraint("DistanceY", 0, 2, 1, 2, 2.466899))
sketch6.addConstraint(Sketcher.Constraint("Distance", 1, 2.635261))
sketch6.addConstraint(Sketcher.Constraint("DistanceX", 0, 1, 0, 2, 2.574913))
pad6 = doc.addObject("PartDesign::Pad", "Pad005")
body.addObject(pad6)
pad6.Profile = sketch6
pad6.Length = 1

doc.recompute()
